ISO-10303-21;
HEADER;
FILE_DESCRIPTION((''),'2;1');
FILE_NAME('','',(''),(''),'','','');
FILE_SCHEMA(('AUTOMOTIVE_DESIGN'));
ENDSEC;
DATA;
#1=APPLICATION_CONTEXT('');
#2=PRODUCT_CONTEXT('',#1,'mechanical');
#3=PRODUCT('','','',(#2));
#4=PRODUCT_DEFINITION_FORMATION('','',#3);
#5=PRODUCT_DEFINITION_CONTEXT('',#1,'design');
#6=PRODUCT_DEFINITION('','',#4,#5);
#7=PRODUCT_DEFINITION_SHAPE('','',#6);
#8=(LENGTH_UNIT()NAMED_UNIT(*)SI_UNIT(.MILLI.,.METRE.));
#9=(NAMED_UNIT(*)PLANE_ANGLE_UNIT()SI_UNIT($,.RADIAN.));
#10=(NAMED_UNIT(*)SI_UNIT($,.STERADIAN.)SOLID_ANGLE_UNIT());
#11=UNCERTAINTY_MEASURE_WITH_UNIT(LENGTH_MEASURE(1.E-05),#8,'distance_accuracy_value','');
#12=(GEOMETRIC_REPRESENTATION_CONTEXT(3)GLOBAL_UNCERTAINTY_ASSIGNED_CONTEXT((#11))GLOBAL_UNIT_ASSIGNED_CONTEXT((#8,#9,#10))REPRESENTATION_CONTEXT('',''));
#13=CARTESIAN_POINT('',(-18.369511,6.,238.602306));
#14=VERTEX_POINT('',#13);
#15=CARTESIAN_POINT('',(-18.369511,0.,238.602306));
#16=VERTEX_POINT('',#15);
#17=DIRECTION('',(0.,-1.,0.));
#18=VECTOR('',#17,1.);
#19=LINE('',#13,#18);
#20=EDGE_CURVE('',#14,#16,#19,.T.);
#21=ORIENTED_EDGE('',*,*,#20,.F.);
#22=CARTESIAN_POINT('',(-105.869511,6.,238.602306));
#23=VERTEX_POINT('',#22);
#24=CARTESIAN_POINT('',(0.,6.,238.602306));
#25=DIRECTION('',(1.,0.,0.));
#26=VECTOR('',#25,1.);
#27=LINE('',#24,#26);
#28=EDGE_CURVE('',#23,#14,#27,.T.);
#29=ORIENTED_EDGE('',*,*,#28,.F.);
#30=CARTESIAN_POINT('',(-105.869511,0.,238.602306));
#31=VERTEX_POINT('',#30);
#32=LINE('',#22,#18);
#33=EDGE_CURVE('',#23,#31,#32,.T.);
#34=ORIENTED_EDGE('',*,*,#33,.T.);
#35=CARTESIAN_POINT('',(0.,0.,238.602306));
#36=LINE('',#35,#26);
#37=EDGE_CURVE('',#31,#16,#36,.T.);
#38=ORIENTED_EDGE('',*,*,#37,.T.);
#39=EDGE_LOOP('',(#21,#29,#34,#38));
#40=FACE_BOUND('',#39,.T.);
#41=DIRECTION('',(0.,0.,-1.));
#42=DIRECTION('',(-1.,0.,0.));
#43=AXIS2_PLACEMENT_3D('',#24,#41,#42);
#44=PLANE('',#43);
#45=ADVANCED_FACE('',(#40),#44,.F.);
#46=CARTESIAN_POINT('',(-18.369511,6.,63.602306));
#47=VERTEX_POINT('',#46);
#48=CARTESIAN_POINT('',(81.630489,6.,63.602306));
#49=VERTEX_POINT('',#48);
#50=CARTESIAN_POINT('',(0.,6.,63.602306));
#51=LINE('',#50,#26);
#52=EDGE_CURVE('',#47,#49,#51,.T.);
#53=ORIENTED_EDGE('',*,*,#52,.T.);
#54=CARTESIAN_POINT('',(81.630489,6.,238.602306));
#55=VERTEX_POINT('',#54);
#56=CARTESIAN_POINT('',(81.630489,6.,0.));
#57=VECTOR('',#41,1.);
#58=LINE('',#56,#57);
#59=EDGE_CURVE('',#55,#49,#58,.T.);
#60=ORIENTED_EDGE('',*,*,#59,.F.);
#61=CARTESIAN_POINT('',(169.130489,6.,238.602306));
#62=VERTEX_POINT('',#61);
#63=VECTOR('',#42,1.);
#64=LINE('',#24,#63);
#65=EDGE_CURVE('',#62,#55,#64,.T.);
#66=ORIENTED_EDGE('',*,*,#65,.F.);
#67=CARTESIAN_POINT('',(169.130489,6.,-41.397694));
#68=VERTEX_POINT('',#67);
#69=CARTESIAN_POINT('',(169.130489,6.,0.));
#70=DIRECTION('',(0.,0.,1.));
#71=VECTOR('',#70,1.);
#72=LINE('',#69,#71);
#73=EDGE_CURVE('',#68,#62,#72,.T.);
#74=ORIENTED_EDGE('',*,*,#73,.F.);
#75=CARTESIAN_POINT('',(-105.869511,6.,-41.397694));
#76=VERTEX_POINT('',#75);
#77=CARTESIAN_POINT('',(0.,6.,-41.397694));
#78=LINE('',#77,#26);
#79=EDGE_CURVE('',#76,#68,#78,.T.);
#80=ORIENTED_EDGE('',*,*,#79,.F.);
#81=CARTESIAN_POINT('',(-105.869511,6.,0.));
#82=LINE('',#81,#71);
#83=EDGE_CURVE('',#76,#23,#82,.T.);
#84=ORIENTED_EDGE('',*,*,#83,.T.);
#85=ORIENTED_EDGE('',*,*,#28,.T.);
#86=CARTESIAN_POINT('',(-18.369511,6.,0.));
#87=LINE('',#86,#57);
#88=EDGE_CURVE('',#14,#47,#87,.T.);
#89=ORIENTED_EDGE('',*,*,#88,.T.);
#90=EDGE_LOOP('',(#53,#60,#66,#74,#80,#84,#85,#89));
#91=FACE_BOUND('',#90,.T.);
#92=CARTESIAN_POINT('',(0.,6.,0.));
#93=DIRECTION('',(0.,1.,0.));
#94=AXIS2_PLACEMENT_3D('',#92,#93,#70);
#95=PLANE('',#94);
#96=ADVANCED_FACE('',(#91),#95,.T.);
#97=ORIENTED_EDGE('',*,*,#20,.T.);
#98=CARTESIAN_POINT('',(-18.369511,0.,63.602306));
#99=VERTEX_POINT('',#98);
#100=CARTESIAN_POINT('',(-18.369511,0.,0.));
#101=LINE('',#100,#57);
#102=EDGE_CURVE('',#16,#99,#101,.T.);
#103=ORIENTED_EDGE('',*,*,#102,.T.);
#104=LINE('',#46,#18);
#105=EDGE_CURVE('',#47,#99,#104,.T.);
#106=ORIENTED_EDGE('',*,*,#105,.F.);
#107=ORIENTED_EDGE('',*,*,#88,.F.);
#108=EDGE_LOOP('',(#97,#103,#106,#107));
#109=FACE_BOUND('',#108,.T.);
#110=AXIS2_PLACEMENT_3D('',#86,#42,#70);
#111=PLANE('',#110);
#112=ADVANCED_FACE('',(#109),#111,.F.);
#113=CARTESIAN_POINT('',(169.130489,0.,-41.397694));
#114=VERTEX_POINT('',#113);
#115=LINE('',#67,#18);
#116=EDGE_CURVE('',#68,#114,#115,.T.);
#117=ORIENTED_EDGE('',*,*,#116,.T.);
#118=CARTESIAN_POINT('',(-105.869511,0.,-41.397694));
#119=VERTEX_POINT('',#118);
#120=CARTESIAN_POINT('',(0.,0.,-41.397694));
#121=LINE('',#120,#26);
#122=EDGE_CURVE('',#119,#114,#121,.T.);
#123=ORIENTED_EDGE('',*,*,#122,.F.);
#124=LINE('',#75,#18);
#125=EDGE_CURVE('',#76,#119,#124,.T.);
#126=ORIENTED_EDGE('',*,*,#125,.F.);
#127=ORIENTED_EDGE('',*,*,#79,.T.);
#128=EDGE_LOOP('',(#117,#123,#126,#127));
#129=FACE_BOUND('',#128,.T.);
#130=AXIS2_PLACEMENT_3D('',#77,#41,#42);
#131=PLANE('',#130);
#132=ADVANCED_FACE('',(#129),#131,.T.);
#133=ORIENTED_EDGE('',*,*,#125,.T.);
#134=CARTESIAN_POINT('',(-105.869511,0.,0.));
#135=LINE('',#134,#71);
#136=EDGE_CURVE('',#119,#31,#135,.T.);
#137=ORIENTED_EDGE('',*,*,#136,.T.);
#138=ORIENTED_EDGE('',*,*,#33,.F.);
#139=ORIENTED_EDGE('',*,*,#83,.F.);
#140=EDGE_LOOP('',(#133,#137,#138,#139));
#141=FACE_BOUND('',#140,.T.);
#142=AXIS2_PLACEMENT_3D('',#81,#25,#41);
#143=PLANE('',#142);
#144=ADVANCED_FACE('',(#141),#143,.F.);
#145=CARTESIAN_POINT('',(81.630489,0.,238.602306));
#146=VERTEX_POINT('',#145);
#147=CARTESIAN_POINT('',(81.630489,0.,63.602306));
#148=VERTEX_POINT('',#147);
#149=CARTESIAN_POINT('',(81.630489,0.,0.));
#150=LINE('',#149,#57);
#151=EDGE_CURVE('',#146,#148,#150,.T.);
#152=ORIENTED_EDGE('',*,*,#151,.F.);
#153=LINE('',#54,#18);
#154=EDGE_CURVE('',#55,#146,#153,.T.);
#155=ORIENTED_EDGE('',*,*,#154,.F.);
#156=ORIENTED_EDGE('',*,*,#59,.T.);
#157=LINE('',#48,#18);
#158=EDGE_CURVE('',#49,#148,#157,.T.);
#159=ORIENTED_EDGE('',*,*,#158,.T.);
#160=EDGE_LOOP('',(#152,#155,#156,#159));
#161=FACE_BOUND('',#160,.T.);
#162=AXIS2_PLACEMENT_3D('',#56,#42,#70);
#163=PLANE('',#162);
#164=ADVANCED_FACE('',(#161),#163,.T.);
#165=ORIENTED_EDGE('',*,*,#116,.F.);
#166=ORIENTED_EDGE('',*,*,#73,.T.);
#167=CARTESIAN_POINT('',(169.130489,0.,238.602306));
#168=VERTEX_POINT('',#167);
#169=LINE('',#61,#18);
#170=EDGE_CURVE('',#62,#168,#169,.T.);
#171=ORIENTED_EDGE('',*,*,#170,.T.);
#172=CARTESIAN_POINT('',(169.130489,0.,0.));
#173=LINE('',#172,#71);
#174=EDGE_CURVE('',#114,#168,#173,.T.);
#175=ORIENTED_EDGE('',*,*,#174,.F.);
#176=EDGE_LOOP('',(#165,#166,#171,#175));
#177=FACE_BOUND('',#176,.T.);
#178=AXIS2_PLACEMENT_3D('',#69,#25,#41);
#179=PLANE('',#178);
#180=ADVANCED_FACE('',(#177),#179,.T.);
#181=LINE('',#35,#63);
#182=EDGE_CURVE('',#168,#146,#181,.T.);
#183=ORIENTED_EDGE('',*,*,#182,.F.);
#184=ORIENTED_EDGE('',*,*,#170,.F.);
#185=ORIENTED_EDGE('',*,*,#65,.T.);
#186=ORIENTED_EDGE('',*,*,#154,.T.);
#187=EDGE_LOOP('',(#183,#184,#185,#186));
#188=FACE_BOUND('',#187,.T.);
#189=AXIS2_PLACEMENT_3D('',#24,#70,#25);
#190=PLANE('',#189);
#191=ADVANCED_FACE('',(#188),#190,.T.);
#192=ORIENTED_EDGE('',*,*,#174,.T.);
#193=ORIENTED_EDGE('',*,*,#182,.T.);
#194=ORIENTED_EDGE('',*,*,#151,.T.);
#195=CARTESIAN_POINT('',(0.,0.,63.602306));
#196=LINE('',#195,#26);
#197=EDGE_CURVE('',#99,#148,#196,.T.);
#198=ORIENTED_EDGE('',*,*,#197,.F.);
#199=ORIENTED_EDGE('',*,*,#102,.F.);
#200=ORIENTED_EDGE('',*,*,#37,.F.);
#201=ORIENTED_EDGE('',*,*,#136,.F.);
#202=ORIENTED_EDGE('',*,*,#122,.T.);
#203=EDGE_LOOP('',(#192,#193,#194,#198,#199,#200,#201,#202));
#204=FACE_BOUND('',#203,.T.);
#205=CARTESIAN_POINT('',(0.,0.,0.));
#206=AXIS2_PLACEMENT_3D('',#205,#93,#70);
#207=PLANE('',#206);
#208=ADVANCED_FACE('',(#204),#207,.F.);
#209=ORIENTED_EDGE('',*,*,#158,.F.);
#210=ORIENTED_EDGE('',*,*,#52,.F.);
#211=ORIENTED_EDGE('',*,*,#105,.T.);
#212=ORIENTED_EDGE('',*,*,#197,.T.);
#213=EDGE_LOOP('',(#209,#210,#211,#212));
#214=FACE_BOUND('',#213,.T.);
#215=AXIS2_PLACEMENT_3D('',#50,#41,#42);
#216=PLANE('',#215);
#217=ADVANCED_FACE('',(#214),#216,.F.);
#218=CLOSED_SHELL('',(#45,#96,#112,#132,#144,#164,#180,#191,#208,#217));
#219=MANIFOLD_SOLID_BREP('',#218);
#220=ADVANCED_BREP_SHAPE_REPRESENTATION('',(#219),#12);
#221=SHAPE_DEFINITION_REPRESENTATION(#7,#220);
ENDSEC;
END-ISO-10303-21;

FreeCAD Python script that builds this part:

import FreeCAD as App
import Part
import Sketcher
from FreeCAD import Vector
Q = App.Units.Quantity

doc = App.newDocument("Part")
params = doc.addObject("Spreadsheet::Sheet", "Params")
for row, (alias, value) in enumerate([
    ("sketch1_width", "100 mm"),
    ("sketch1_width2", "275 mm"),
    ("sketch1_height", "175 mm"),
    ("sketch1_height2", "280 mm"),
    ("pad1_length", "6 mm"),
], start=1):
    params.set(f"A{row}", alias)
    params.set(f"B{row}", "=" + value)
    params.setAlias(f"B{row}", alias)

body = doc.addObject("PartDesign::Body", "Body")

# Sketch on XZ plane
sketch1 = body.newObject("Sketcher::SketchObject", "Sketch")
sketch1.AttachmentSupport = (doc.getObject("XZ_Plane"), [""])
sketch1.MapMode = "FlatFace"
sketch1.addGeometry(Part.LineSegment(Vector(-18, 239, 0), Vector(-18, 64, 0)), False)
sketch1.addGeometry(Part.LineSegment(Vector(-18, 64, 0), Vector(82, 64, 0)), False)
sketch1.addGeometry(Part.LineSegment(Vector(82, 64, 0), Vector(82, 239, 0)), False)
sketch1.addGeometry(Part.LineSegment(Vector(82, 239, 0), Vector(169, 239, 0)), False)
sketch1.addGeometry(Part.LineSegment(Vector(169, 239, 0), Vector(169, -41, 0)), False)
sketch1.addGeometry(Part.LineSegment(Vector(169, -41, 0), Vector(-106, -41, 0)), False)
sketch1.addGeometry(Part.LineSegment(Vector(-106, -41, 0), Vector(-106, 239, 0)), False)
sketch1.addGeometry(Part.LineSegment(Vector(-106, 239, 0), Vector(-18, 239, 0)), False)
sketch1.addConstraint(Sketcher.Constraint("Coincident", 0, 2, 1, 1))
sketch1.addConstraint(Sketcher.Constraint("Coincident", 1, 2, 2, 1))
sketch1.addConstraint(Sketcher.Constraint("Coincident", 2, 2, 3, 1))
sketch1.addConstraint(Sketcher.Constraint("Coincident", 3, 2, 4, 1))
sketch1.addConstraint(Sketcher.Constraint("Coincident", 4, 2, 5, 1))
sketch1.addConstraint(Sketcher.Constraint("Coincident", 5, 2, 6, 1))
sketch1.addConstraint(Sketcher.Constraint("Coincident", 6, 2, 7, 1))
sketch1.addConstraint(Sketcher.Constraint("Coincident", 7, 2, 0, 1))
sketch1.addConstraint(Sketcher.Constraint("Vertical", 0))
sketch1.addConstraint(Sketcher.Constraint("Horizontal", 1))
sketch1.addConstraint(Sketcher.Constraint("Vertical", 2))
sketch1.addConstraint(Sketcher.Constraint("Horizontal", 3))
sketch1.addConstraint(Sketcher.Constraint("Vertical", 4))
sketch1.addConstraint(Sketcher.Constraint("Horizontal", 5))
sketch1.addConstraint(Sketcher.Constraint("Vertical", 6))
sketch1.addConstraint(Sketcher.Constraint("Horizontal", 7))
sketch1.addConstraint(Sketcher.Constraint("Horizontal", 3, 2, 6, 2))
sketch1.addConstraint(Sketcher.Constraint("Equal", 3, 7))
sketch1.addConstraint(Sketcher.Constraint("DistanceX", 1, 1, 1, 2, Q("100 mm")))
sketch1.addConstraint(Sketcher.Constraint("DistanceX", 5, 2, 5, 1, Q("275 mm")))
sketch1.addConstraint(Sketcher.Constraint("DistanceY", 0, 2, 0, 1, Q("175 mm")))
sketch1.addConstraint(Sketcher.Constraint("DistanceY", 4, 2, 4, 1, Q("280 mm")))
sketch1.addConstraint(Sketcher.Constraint("DistanceX", 0, 2, -1, 1, Q("18.369511 mm")))
sketch1.addConstraint(Sketcher.Constraint("DistanceY", -1, 1, 0, 2, Q("63.602306 mm")))
sketch1.setExpression("Constraints[18]", "Params.sketch1_width")
sketch1.setExpression("Constraints[19]", "Params.sketch1_width2")
sketch1.setExpression("Constraints[20]", "Params.sketch1_height")
sketch1.setExpression("Constraints[21]", "Params.sketch1_height2")
pad1 = body.newObject("PartDesign::Pad", "Pad")
pad1.Profile = sketch1
pad1.setExpression("Length", "Params.pad1_length")
pad1.Reversed = True

doc.recompute()
